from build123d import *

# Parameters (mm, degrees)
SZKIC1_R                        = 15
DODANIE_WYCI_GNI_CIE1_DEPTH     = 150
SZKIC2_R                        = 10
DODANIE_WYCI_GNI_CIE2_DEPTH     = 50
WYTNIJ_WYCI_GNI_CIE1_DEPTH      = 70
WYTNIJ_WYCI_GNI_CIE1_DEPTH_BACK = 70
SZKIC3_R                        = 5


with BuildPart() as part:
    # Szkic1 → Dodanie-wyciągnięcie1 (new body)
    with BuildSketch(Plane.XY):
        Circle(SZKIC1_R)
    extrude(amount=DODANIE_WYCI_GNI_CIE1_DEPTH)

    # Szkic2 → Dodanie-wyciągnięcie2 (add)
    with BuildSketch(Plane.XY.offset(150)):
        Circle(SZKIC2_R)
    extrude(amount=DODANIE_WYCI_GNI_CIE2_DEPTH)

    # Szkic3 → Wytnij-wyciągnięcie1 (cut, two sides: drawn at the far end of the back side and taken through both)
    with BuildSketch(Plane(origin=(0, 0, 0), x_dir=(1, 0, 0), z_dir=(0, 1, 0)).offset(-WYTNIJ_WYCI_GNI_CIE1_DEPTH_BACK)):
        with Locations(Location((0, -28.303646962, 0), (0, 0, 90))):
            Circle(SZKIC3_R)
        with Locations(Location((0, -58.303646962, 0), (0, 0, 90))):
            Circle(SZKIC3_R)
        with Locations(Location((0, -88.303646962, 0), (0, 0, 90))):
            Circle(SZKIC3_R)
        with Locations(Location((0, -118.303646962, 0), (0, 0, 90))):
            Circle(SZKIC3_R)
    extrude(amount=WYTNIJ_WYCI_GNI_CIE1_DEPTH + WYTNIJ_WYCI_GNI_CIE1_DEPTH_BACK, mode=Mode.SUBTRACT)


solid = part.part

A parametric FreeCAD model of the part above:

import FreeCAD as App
import Part
import Sketcher
Q = App.Units.Quantity

doc = App.newDocument("Part")
params = doc.addObject("Spreadsheet::Sheet", "Params")
for row, (alias, value) in enumerate([
    ("sketch1_diameter", "30 mm"),
    ("pad1_length", "150 mm"),
    ("sketch2_diameter", "20 mm"),
    ("pad2_length", "50 mm"),
    ("sketch3_diameter", "10 mm"),
], start=1):
    params.set(f"A{row}", alias)
    params.set(f"B{row}", "=" + value)
    params.setAlias(f"B{row}", alias)

body = doc.addObject("PartDesign::Body", "Body")

# Sketch on XY plane
sketch1 = body.newObject("Sketcher::SketchObject", "Sketch")
sketch1.AttachmentSupport = (doc.getObject("XY_Plane"), [""])
sketch1.MapMode = "FlatFace"
sketch1.addGeometry(Part.Circle(App.Vector(0, 0, 0), App.Vector(0, 0, 1), 15), False)
sketch1.addConstraint([
    Sketcher.Constraint("Coincident", 0, 3, -1, 1),
    Sketcher.Constraint("Diameter", 0, Q("30 mm")),
])
sketch1.setExpression("Constraints[1]", "Params.sketch1_diameter")
pad1 = body.newObject("PartDesign::Pad", "Pad")
pad1.Profile = sketch1
pad1.setExpression("Length", "Params.pad1_length")

# Sketch on XY plane
sketch2 = body.newObject("Sketcher::SketchObject", "Sketch001")
sketch2.AttachmentSupport = (doc.getObject("XY_Plane"), [""])
sketch2.MapMode = "FlatFace"
sketch2.AttachmentOffset = App.Placement(App.Vector(0, 0, 150), App.Rotation())
sketch2.addGeometry(Part.Circle(App.Vector(0, 0, 0), App.Vector(0, 0, 1), 10), False)
sketch2.addConstraint([
    Sketcher.Constraint("Coincident", 0, 3, -1, 1),
    Sketcher.Constraint("Diameter", 0, Q("20 mm")),
])
sketch2.setExpression("Constraints[1]", "Params.sketch2_diameter")
pad2 = body.newObject("PartDesign::Pad", "Pad001")
pad2.Profile = sketch2
pad2.setExpression("Length", "Params.pad2_length")

# Sketch on XZ plane
sketch3 = body.newObject("Sketcher::SketchObject", "Sketch002")
sketch3.AttachmentSupport = (doc.getObject("XZ_Plane"), [""])
sketch3.MapMode = "FlatFace"
sketch3.addGeometry([
    Part.Circle(App.Vector(0, 28, 0), App.Vector(0, 0, 1), 5),
    Part.Circle(App.Vector(0, 58, 0), App.Vector(0, 0, 1), 5),
    Part.Circle(App.Vector(0, 88, 0), App.Vector(0, 0, 1), 5),
    Part.Circle(App.Vector(0, 118, 0), App.Vector(0, 0, 1), 5),
], False)
sketch3.addConstraint([
    Sketcher.Constraint("Equal", 0, 1),
    Sketcher.Constraint("Equal", 1, 2),
    Sketcher.Constraint("Equal", 2, 3),
    Sketcher.Constraint("PointOnObject", 0, 3, -2),
    Sketcher.Constraint("PointOnObject", 1, 3, -2),
    Sketcher.Constraint("PointOnObject", 2, 3, -2),
    Sketcher.Constraint("PointOnObject", 3, 3, -2),
    Sketcher.Constraint("Diameter", 0, Q("10 mm")),
    Sketcher.Constraint("DistanceY", 0, 3, 1, 3, Q("30 mm")),
    Sketcher.Constraint("DistanceY", 1, 3, 2, 3, Q("30 mm")),
    Sketcher.Constraint("DistanceY", 2, 3, 3, 3, Q("30 mm")),
    Sketcher.Constraint("DistanceY", -1, 1, 0, 3, Q("28.303647 mm")),
])
sketch3.setExpression("Constraints[7]", "Params.sketch3_diameter")
pocket1 = body.newObject("PartDesign::Pocket", "Pocket")
pocket1.Profile = sketch3
pocket1.Type = "ThroughAll"
pocket1.Midplane = True

doc.recompute()
